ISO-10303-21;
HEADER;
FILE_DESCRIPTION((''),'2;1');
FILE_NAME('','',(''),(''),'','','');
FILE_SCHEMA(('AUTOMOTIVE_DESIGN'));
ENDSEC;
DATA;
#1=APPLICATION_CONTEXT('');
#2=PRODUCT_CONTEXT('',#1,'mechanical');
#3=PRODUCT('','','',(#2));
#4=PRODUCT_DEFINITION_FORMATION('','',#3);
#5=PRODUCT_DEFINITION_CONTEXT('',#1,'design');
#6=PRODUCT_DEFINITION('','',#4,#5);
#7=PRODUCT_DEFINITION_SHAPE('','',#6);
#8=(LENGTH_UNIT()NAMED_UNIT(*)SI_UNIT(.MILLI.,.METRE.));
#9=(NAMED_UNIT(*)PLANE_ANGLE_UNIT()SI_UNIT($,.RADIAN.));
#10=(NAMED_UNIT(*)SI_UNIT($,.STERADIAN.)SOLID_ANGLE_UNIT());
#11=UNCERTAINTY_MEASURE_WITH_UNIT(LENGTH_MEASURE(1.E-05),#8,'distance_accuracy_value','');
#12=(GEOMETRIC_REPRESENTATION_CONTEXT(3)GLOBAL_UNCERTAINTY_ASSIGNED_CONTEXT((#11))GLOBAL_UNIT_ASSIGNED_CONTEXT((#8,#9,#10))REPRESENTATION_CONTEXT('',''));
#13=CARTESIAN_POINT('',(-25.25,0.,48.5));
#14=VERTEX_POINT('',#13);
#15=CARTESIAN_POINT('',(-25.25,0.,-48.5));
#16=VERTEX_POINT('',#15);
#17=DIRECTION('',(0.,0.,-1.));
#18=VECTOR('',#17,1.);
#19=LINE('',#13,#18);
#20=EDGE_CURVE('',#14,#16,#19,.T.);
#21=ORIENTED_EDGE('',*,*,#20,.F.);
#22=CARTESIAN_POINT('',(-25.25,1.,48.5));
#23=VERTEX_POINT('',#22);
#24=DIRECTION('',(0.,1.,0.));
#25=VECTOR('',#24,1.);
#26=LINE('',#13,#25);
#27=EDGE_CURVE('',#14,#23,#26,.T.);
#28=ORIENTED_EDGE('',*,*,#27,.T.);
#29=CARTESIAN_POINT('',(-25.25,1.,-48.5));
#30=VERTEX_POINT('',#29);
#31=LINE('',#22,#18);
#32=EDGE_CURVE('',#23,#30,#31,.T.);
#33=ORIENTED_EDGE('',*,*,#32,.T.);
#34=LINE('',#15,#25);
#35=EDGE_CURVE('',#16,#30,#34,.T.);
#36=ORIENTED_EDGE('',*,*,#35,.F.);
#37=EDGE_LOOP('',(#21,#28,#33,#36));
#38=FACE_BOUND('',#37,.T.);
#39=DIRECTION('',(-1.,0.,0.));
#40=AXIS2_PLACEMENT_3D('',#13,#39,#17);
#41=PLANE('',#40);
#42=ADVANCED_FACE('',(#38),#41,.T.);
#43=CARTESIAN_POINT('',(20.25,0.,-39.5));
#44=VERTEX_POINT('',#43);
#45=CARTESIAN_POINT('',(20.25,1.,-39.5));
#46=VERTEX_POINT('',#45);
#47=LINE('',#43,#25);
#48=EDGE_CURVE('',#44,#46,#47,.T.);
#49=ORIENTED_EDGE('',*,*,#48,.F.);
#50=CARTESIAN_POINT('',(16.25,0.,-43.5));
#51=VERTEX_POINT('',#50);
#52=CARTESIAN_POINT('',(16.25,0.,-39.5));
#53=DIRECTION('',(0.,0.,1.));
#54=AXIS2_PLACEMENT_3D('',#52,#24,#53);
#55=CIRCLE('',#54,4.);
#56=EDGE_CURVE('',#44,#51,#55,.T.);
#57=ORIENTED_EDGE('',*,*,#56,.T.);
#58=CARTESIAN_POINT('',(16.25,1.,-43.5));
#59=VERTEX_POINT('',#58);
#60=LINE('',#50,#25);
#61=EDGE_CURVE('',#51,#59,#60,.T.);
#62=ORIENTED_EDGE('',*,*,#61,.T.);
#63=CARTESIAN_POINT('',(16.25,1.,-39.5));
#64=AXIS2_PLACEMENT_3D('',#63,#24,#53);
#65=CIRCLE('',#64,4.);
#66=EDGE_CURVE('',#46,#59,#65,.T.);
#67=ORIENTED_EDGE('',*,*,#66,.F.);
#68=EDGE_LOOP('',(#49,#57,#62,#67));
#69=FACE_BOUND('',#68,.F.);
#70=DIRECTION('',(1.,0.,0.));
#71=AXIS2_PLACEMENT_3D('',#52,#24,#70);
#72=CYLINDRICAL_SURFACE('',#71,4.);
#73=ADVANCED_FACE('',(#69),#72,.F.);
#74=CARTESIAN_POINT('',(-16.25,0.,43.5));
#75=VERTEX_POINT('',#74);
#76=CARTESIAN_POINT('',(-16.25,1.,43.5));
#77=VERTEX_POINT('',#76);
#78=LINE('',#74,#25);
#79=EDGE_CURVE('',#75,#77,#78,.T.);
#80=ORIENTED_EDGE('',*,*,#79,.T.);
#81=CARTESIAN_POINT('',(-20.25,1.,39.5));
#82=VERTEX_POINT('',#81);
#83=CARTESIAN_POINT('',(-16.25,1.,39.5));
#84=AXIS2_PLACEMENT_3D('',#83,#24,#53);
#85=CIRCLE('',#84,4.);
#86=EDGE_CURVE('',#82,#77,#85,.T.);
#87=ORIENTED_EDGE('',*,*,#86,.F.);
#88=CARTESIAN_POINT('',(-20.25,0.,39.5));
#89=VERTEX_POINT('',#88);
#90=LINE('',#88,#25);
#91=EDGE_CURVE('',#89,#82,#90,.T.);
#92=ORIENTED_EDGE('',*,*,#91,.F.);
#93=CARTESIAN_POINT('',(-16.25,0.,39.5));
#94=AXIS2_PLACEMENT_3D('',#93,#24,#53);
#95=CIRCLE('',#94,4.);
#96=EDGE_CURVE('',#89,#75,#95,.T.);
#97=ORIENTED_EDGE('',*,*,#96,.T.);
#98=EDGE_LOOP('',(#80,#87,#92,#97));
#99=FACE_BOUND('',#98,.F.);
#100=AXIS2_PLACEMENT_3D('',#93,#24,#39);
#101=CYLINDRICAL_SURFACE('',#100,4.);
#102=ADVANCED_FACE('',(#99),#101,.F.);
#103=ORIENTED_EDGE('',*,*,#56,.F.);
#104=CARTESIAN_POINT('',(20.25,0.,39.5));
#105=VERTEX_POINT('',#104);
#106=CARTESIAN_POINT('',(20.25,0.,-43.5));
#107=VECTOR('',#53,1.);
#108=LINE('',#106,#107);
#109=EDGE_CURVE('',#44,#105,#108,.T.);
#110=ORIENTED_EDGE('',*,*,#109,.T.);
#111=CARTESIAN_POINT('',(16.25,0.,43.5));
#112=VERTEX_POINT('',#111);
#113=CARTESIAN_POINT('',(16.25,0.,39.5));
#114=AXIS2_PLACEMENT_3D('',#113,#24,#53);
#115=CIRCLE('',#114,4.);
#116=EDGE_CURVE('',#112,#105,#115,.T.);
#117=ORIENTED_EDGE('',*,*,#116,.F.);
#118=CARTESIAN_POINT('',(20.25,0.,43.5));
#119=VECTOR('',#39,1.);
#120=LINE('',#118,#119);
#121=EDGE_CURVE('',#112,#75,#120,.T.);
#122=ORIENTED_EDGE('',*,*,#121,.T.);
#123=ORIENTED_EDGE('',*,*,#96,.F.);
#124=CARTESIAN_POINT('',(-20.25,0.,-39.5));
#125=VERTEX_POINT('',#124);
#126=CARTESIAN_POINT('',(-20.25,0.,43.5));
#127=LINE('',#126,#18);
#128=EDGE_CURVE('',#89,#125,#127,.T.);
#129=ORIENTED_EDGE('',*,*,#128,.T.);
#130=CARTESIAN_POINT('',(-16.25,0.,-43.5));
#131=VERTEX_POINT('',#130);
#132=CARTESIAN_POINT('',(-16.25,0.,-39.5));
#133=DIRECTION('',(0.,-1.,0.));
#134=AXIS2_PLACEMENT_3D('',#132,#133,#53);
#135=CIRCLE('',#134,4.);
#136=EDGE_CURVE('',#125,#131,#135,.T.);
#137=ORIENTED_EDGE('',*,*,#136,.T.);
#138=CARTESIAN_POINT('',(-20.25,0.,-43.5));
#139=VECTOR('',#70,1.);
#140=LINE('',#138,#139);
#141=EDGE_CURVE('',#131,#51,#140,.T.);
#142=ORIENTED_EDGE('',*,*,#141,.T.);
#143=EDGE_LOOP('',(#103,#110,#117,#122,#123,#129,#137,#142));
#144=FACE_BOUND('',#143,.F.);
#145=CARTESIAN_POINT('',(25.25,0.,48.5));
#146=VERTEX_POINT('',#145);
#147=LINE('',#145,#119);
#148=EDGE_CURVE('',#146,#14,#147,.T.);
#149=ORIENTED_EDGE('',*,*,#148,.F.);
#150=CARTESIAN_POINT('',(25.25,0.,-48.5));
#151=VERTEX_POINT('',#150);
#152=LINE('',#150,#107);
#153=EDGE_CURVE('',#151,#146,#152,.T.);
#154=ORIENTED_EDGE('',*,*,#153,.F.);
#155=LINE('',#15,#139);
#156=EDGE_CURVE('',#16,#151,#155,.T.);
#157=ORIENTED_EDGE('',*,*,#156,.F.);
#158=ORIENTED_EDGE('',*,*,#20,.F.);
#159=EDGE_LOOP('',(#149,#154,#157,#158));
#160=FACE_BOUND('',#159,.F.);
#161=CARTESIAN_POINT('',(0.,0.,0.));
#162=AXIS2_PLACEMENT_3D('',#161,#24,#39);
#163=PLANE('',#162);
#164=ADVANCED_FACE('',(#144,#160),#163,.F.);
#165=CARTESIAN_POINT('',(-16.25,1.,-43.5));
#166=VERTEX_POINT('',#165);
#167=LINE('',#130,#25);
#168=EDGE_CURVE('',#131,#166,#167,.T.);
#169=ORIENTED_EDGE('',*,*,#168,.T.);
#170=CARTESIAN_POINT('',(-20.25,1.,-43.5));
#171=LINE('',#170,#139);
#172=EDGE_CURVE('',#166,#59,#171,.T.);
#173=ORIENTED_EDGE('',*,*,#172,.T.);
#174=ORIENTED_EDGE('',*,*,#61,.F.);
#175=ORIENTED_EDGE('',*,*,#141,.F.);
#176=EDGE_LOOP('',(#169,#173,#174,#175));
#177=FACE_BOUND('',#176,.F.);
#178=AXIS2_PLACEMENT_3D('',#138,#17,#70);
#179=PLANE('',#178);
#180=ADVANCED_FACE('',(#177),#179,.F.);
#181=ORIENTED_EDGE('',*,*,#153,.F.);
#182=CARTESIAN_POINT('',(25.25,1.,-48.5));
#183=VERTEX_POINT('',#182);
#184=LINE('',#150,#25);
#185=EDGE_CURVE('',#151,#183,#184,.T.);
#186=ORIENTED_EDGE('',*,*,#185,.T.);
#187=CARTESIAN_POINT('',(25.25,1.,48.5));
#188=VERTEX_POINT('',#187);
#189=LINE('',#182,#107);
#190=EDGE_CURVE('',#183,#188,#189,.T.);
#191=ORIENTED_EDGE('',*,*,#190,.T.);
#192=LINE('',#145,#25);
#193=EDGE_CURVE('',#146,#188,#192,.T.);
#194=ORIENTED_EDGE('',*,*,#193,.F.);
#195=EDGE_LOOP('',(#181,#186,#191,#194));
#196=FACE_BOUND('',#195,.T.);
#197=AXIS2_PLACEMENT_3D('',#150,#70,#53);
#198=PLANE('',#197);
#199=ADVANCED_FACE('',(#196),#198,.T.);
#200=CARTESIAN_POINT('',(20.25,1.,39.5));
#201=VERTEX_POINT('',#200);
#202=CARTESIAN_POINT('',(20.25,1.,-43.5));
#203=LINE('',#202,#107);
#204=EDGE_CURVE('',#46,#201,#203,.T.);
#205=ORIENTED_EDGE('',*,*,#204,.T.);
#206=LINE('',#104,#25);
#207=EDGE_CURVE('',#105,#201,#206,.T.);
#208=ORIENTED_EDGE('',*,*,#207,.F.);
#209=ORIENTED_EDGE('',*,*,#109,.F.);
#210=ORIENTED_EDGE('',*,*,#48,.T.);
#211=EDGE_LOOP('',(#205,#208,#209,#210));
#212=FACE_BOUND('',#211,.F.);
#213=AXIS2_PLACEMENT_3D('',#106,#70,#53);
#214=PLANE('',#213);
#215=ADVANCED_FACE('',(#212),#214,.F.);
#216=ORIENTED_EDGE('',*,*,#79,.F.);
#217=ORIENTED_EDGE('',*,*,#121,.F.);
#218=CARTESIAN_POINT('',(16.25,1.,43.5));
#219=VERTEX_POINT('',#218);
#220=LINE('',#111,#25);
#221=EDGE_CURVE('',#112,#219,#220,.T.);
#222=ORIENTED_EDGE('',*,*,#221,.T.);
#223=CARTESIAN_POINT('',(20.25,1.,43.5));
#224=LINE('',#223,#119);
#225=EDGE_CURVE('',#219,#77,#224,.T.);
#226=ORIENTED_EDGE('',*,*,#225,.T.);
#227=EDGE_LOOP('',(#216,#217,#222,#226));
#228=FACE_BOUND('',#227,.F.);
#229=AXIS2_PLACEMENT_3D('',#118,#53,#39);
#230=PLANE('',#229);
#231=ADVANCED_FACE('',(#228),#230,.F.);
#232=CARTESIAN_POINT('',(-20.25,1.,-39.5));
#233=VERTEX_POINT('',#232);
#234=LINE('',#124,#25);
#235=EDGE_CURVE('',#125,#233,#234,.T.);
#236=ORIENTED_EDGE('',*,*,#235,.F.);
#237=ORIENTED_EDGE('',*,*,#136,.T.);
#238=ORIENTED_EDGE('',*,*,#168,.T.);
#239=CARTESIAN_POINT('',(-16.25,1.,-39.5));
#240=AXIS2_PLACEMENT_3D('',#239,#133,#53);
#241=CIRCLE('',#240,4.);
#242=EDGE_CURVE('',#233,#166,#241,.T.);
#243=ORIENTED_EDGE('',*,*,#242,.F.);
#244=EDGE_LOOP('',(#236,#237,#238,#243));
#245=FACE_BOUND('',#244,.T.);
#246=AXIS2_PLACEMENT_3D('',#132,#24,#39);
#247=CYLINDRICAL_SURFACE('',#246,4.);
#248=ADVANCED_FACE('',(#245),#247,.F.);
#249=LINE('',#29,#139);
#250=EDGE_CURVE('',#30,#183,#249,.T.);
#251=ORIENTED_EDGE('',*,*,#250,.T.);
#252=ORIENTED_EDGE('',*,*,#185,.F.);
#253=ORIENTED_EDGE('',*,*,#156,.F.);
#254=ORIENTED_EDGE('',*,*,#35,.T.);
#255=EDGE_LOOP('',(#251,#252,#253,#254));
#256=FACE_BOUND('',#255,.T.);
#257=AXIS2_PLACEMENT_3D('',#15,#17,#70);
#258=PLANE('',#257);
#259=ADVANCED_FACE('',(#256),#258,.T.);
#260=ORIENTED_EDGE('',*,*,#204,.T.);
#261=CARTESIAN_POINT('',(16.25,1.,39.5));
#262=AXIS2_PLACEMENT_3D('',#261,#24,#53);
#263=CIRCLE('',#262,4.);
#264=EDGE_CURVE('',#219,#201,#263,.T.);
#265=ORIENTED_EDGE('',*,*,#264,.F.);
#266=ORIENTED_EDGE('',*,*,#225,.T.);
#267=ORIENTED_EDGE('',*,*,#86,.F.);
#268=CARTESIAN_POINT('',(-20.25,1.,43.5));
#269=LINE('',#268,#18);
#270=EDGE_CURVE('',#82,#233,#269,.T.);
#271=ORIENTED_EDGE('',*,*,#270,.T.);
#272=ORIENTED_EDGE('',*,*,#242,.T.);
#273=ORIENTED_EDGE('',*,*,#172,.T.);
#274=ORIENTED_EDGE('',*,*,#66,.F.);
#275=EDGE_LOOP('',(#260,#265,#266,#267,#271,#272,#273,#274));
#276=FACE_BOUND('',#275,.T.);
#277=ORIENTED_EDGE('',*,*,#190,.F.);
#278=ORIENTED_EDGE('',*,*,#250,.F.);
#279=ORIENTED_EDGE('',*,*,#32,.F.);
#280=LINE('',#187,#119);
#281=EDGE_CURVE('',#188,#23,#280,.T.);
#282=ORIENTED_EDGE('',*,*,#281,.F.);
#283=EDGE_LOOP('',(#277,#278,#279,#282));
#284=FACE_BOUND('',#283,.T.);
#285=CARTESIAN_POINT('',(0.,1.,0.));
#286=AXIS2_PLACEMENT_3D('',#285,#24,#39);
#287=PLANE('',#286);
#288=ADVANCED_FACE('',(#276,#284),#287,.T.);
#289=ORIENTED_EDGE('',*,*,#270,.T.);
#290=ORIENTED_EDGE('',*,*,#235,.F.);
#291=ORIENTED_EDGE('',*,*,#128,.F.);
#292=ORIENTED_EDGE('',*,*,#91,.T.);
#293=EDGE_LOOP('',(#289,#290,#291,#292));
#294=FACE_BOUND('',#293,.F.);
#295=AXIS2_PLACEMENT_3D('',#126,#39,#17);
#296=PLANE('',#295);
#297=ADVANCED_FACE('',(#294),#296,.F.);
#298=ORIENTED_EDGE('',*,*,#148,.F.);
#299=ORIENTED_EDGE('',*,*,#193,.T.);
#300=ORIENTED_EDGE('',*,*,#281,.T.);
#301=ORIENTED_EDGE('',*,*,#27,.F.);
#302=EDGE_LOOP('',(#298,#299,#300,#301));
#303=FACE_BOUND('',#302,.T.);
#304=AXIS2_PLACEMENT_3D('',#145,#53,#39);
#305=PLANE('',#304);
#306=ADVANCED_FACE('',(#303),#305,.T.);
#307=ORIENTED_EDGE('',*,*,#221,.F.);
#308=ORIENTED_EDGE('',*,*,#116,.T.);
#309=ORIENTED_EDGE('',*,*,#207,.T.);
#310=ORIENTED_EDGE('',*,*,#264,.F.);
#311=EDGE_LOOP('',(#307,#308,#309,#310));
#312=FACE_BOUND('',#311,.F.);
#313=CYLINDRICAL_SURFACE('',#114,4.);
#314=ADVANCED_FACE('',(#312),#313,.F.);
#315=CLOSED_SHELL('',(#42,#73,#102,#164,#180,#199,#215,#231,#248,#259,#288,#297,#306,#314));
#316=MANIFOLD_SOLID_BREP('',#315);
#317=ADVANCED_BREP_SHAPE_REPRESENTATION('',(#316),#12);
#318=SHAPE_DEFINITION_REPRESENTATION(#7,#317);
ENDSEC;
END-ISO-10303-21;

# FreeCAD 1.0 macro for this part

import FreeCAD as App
import Part
import Sketcher
Q = App.Units.Quantity


def edges_at(feature, points):
    """Names of the edges that pass closest to the given points."""
    edges = feature.Shape.Edges
    near = lambda p: min(range(len(edges)), key=lambda i: edges[i].distToShape(Part.Vertex(*p))[0])
    return sorted({f"Edge{near(p) + 1}" for p in points})

doc = App.newDocument("Part")
params = doc.addObject("Spreadsheet::Sheet", "Params")
for row, (alias, value) in enumerate([
    ("sketch1_height", "87 mm"),
    ("sketch1_width", "40.5 mm"),
    ("pad1_length", "1 mm"),
    ("fillet_radius", "4 mm"),
], start=1):
    params.set(f"A{row}", alias)
    params.set(f"B{row}", "=" + value)
    params.setAlias(f"B{row}", alias)

body = doc.addObject("PartDesign::Body", "Body")

sketch1 = body.newObject("Sketcher::SketchObject", "Sketch")
sketch1.AttachmentSupport = (doc.getObject("XZ_Plane"), [""])
sketch1.MapMode = "FlatFace"
sketch1.addGeometry(Part.LineSegment(App.Vector(25.25, -48.5, 0), App.Vector(-25.25, -48.5, 0)), False)
sketch1.addGeometry(Part.LineSegment(App.Vector(-25.25, -48.5, 0), App.Vector(-25.25, 48.5, 0)), False)
sketch1.addGeometry(Part.LineSegment(App.Vector(-25.25, 48.5, 0), App.Vector(25.25, 48.5, 0)), False)
sketch1.addGeometry(Part.LineSegment(App.Vector(25.25, 48.5, 0), App.Vector(25.25, -48.5, 0)), False)
sketch1.addGeometry(Part.LineSegment(App.Vector(-20.25, 43.5, 0), App.Vector(-20.25, -43.5, 0)), False)
sketch1.addGeometry(Part.LineSegment(App.Vector(-20.25, -43.5, 0), App.Vector(20.25, -43.5, 0)), False)
sketch1.addGeometry(Part.LineSegment(App.Vector(20.25, -43.5, 0), App.Vector(20.25, 43.5, 0)), False)
sketch1.addGeometry(Part.LineSegment(App.Vector(20.25, 43.5, 0), App.Vector(-20.25, 43.5, 0)), False)
sketch1.addConstraint(Sketcher.Constraint("Coincident", 0, 2, 1, 1))
sketch1.addConstraint(Sketcher.Constraint("Coincident", 1, 2, 2, 1))
sketch1.addConstraint(Sketcher.Constraint("Coincident", 2, 2, 3, 1))
sketch1.addConstraint(Sketcher.Constraint("Coincident", 3, 2, 0, 1))
sketch1.addConstraint(Sketcher.Constraint("Coincident", 4, 2, 5, 1))
sketch1.addConstraint(Sketcher.Constraint("Coincident", 5, 2, 6, 1))
sketch1.addConstraint(Sketcher.Constraint("Coincident", 6, 2, 7, 1))
sketch1.addConstraint(Sketcher.Constraint("Coincident", 7, 2, 4, 1))
sketch1.addConstraint(Sketcher.Constraint("Horizontal", 0))
sketch1.addConstraint(Sketcher.Constraint("Vertical", 1))
sketch1.addConstraint(Sketcher.Constraint("Horizontal", 2))
sketch1.addConstraint(Sketcher.Constraint("Vertical", 3))
sketch1.addConstraint(Sketcher.Constraint("Vertical", 4))
sketch1.addConstraint(Sketcher.Constraint("Horizontal", 5))
sketch1.addConstraint(Sketcher.Constraint("Vertical", 6))
sketch1.addConstraint(Sketcher.Constraint("Horizontal", 7))
sketch1.addConstraint(Sketcher.Constraint("Symmetric", 0, 2, 2, 2, -1, 1))
sketch1.addConstraint(Sketcher.Constraint("Symmetric", 4, 2, 6, 2, -1, 1))
sketch1.addConstraint(Sketcher.Constraint("DistanceY", 4, 2, 4, 1, Q("87 mm")))
sketch1.addConstraint(Sketcher.Constraint("DistanceX", 5, 1, 5, 2, Q("40.5 mm")))
sketch1.addConstraint(Sketcher.Constraint("DistanceX", 0, 2, 4, 2, Q("5 mm")))
sketch1.addConstraint(Sketcher.Constraint("DistanceY", 0, 2, 4, 2, Q("5 mm")))
sketch1.setExpression("Constraints[18]", "Params.sketch1_height")
sketch1.setExpression("Constraints[19]", "Params.sketch1_width")
pad1 = body.newObject("PartDesign::Pad", "Pad")
pad1.Profile = sketch1
pad1.setExpression("Length", "Params.pad1_length")
pad1.Reversed = True
doc.recompute()

fillet = body.newObject("PartDesign::Fillet", "Fillet")
fillet.Base = (pad1, edges_at(pad1, [
    (-20.25, 0.5, -43.5),
    (-20.25, 0.5, 43.5),
    (20.25, 0.5, -43.5),
    (20.25, 0.5, 43.5),
]))
fillet.setExpression("Radius", "Params.fillet_radius")

doc.recompute()
